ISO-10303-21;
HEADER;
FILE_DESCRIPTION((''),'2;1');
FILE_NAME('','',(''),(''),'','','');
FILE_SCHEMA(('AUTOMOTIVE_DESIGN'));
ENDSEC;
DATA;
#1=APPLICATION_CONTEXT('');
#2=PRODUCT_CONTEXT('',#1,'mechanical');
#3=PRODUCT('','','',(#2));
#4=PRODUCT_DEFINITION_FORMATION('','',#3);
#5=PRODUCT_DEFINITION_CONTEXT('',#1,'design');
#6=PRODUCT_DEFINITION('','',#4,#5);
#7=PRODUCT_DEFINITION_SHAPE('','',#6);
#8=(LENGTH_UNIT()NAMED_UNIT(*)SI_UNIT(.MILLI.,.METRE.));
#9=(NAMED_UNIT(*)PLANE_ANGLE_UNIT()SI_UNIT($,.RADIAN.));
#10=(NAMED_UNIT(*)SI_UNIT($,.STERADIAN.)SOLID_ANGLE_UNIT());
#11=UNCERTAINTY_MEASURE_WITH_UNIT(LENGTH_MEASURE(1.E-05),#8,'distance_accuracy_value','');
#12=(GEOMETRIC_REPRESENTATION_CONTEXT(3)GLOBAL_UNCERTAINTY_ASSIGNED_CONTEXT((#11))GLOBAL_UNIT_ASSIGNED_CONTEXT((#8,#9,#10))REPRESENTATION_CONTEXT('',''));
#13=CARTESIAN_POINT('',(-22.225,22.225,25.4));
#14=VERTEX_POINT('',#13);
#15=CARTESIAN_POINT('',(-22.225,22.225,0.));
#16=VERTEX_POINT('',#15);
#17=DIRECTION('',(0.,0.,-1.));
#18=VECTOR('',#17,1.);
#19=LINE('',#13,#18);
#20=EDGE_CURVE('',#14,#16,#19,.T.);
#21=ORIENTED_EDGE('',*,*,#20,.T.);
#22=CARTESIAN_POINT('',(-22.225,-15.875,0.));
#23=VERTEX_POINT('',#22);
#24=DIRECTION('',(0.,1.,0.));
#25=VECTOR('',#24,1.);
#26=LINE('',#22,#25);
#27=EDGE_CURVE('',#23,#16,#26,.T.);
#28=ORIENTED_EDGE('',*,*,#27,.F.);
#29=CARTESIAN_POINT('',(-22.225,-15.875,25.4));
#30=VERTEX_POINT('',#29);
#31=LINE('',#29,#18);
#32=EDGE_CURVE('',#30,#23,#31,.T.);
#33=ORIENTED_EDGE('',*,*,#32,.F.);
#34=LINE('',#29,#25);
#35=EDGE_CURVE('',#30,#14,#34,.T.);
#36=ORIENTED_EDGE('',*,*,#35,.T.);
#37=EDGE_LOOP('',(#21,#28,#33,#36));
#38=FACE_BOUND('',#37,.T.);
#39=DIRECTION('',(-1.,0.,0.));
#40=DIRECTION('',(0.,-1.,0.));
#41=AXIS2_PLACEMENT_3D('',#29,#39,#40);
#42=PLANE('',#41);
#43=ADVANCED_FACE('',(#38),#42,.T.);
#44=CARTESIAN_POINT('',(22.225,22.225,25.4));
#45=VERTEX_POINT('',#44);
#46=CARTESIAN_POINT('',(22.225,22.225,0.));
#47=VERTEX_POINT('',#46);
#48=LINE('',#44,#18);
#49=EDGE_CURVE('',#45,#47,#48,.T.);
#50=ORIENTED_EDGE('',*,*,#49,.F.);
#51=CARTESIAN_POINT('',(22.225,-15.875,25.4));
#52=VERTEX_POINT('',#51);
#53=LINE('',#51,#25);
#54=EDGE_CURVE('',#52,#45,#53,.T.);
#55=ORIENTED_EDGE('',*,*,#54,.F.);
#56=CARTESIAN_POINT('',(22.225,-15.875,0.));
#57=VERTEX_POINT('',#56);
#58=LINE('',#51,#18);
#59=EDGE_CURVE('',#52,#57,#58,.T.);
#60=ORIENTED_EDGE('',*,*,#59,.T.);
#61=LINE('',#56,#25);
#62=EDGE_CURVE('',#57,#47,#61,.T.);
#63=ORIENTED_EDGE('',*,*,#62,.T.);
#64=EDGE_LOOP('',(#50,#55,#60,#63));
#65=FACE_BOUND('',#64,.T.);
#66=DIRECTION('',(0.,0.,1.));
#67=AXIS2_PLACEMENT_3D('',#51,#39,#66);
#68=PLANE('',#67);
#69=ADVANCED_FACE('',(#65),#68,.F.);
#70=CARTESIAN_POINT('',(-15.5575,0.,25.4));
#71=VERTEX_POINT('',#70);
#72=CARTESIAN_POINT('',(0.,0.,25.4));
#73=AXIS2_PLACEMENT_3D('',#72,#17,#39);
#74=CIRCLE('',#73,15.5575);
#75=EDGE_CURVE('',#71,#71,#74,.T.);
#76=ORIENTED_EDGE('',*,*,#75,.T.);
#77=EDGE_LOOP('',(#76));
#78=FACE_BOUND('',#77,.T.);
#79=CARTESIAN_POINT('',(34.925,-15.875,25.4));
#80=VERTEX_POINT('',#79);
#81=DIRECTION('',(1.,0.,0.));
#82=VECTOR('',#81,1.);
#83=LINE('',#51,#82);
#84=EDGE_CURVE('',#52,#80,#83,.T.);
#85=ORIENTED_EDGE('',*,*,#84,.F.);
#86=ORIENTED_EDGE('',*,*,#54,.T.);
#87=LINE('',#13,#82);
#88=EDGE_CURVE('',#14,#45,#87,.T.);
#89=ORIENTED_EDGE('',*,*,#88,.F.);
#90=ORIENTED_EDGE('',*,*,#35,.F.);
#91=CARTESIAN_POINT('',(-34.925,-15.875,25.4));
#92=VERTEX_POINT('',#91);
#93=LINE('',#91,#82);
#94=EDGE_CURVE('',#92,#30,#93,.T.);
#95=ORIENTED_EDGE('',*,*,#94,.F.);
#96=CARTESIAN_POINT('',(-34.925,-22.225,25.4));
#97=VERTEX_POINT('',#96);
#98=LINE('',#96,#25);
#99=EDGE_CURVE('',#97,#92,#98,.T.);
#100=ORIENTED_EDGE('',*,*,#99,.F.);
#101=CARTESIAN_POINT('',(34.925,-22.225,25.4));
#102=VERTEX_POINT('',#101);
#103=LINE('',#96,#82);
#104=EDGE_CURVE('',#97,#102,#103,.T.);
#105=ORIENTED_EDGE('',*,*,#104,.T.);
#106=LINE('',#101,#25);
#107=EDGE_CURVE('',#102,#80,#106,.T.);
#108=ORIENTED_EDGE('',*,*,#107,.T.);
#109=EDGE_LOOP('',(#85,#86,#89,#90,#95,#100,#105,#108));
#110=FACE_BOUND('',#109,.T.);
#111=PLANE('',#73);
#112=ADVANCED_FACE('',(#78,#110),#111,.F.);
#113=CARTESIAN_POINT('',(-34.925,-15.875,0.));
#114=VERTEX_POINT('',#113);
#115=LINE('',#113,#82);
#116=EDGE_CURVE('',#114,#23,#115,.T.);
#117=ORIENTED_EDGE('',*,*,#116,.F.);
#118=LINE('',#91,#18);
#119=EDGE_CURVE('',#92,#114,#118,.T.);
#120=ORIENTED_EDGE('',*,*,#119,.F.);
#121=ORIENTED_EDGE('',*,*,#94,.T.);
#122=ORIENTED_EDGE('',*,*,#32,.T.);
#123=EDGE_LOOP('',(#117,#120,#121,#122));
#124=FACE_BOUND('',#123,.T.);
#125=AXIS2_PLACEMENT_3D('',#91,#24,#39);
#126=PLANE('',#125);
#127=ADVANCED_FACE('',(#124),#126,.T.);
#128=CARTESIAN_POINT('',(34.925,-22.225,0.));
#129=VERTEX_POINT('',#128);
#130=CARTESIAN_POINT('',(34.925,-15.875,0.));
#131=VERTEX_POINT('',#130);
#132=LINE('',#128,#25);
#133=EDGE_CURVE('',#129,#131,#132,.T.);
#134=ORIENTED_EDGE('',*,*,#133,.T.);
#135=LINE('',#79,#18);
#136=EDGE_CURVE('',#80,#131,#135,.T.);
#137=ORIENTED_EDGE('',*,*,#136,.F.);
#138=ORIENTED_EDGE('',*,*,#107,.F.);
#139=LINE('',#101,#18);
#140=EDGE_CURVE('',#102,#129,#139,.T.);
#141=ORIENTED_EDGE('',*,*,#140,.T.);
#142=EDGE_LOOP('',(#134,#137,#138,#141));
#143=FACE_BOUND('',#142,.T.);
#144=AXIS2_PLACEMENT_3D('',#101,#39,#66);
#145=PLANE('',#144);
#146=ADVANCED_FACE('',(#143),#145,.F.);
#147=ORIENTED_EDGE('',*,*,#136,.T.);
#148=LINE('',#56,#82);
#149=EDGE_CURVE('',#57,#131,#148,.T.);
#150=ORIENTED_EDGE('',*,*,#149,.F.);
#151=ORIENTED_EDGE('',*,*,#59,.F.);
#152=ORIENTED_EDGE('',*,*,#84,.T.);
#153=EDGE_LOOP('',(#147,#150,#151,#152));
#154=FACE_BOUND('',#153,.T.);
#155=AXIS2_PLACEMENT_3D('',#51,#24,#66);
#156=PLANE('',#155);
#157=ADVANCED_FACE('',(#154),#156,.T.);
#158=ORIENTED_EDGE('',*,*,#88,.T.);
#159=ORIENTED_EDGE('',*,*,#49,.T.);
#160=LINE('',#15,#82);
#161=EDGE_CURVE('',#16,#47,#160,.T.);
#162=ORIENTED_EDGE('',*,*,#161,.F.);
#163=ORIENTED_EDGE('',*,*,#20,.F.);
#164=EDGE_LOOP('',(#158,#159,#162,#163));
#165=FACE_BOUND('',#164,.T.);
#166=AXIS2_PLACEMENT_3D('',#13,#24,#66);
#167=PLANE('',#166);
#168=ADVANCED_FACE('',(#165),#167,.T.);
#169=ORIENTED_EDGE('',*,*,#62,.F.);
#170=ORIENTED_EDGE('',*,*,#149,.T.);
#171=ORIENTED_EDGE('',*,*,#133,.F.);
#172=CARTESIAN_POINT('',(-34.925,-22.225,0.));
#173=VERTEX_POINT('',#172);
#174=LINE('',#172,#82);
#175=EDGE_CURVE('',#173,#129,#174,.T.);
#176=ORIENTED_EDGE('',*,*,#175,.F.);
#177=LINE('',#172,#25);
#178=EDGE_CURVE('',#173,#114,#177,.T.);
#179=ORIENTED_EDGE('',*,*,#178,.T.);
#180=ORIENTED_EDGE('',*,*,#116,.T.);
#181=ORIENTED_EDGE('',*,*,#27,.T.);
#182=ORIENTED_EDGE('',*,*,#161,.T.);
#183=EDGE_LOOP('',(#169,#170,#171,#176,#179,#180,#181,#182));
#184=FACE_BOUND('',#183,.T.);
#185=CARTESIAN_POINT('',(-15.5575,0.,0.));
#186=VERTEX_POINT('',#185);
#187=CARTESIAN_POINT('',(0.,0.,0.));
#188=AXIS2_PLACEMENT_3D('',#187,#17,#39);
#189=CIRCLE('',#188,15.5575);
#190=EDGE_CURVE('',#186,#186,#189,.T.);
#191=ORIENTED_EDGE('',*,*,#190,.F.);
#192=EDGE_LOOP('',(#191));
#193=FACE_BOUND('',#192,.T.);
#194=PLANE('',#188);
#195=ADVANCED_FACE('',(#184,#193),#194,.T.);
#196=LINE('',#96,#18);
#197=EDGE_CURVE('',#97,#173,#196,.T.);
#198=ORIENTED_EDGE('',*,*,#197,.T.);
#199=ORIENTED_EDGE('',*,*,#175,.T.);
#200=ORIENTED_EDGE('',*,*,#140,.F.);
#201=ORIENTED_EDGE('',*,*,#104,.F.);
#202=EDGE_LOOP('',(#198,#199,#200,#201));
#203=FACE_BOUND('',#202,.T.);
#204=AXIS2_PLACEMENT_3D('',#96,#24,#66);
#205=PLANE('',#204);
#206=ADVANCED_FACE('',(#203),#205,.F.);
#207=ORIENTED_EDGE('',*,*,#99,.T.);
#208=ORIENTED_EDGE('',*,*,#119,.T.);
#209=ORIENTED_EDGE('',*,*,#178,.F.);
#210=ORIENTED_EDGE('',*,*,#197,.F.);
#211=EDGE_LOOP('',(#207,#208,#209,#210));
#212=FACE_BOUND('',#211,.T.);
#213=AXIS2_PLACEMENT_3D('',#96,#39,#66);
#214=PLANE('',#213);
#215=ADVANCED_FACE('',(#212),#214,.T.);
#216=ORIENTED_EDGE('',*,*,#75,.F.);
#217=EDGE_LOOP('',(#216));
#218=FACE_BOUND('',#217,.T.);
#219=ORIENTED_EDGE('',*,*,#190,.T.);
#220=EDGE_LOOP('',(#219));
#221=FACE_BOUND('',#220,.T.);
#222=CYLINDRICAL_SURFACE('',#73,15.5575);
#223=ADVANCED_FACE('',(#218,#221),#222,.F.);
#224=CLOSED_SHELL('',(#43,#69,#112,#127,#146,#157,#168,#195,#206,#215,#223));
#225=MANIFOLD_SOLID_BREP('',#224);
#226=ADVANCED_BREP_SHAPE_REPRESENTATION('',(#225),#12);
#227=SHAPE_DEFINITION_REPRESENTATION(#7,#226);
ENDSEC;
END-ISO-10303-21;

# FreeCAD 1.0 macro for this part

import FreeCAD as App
import Part
import Sketcher
from FreeCAD import Vector
Q = App.Units.Quantity

doc = App.newDocument("Part")
body = doc.addObject("PartDesign::Body", "Body")

# Sketch on XY plane
sketch1 = body.newObject("Sketcher::SketchObject", "Sketch")
sketch1.AttachmentSupport = (doc.getObject("XY_Plane"), [""])
sketch1.MapMode = "FlatFace"
sketch1.addGeometry([
    Part.LineSegment(Vector(-35, -22, 0), Vector(35, -22, 0)),  # 0
    Part.LineSegment(Vector(35, -22, 0), Vector(35, -16, 0)),  # 1
    Part.LineSegment(Vector(35, -16, 0), Vector(22, -16, 0)),  # 2
    Part.LineSegment(Vector(22, -16, 0), Vector(22, 22, 0)),  # 3
    Part.LineSegment(Vector(22, 22, 0), Vector(-22, 22, 0)),  # 4
    Part.LineSegment(Vector(-22, 22, 0), Vector(-22, -16, 0)),  # 5
    Part.LineSegment(Vector(-22, -16, 0), Vector(-35, -16, 0)),  # 6
    Part.LineSegment(Vector(-35, -16, 0), Vector(-35, -22, 0)),  # 7
], False)
sketch1.addConstraint([
    Sketcher.Constraint("Coincident", 0, 2, 1, 1),
    Sketcher.Constraint("Coincident", 1, 2, 2, 1),
    Sketcher.Constraint("Coincident", 2, 2, 3, 1),
    Sketcher.Constraint("Coincident", 3, 2, 4, 1),
    Sketcher.Constraint("Coincident", 4, 2, 5, 1),
    Sketcher.Constraint("Coincident", 5, 2, 6, 1),
    Sketcher.Constraint("Coincident", 6, 2, 7, 1),
    Sketcher.Constraint("Coincident", 7, 2, 0, 1),
    Sketcher.Constraint("Horizontal", 0),
    Sketcher.Constraint("Vertical", 1),
    Sketcher.Constraint("Horizontal", 2),
    Sketcher.Constraint("Vertical", 3),
    Sketcher.Constraint("Horizontal", 4),
    Sketcher.Constraint("Vertical", 5),
    Sketcher.Constraint("Horizontal", 6),
    Sketcher.Constraint("Vertical", 7),
    Sketcher.Constraint("Symmetric", 2, 2, 5, 2, -2),
    Sketcher.Constraint("Equal", 2, 6),
    Sketcher.Constraint("DistanceX", 2, 2, 2, 1, Q("0.5 in")),
    Sketcher.Constraint("DistanceY", 3, 1, 3, 2, Q("1.5 in")),
    Sketcher.Constraint("DistanceX", 0, 1, 0, 2, Q("2.75 in")),
    Sketcher.Constraint("DistanceY", 1, 1, 1, 2, Q("0.25 in")),
    Sketcher.Constraint("DistanceY", 0, 2, -1, 1, Q("0.875 in")),
])
pad1 = body.newObject("PartDesign::Pad", "Pad")
pad1.Profile = sketch1
pad1.Length = Q("1 in")

# Sketch on XY plane
sketch2 = body.newObject("Sketcher::SketchObject", "Sketch001")
sketch2.AttachmentSupport = (doc.getObject("XY_Plane"), [""])
sketch2.MapMode = "FlatFace"
sketch2.addGeometry(Part.Circle(Vector(0, 0, 0), Vector(0, 0, 1), 16), False)
sketch2.addConstraint([
    Sketcher.Constraint("Coincident", 0, 3, -1, 1),
    Sketcher.Constraint("Diameter", 0, Q("1.225 in")),
])
pocket1 = body.newObject("PartDesign::Pocket", "Pocket")
pocket1.Profile = sketch2
pocket1.Type = "ThroughAll"
pocket1.Reversed = True

doc.recompute()
